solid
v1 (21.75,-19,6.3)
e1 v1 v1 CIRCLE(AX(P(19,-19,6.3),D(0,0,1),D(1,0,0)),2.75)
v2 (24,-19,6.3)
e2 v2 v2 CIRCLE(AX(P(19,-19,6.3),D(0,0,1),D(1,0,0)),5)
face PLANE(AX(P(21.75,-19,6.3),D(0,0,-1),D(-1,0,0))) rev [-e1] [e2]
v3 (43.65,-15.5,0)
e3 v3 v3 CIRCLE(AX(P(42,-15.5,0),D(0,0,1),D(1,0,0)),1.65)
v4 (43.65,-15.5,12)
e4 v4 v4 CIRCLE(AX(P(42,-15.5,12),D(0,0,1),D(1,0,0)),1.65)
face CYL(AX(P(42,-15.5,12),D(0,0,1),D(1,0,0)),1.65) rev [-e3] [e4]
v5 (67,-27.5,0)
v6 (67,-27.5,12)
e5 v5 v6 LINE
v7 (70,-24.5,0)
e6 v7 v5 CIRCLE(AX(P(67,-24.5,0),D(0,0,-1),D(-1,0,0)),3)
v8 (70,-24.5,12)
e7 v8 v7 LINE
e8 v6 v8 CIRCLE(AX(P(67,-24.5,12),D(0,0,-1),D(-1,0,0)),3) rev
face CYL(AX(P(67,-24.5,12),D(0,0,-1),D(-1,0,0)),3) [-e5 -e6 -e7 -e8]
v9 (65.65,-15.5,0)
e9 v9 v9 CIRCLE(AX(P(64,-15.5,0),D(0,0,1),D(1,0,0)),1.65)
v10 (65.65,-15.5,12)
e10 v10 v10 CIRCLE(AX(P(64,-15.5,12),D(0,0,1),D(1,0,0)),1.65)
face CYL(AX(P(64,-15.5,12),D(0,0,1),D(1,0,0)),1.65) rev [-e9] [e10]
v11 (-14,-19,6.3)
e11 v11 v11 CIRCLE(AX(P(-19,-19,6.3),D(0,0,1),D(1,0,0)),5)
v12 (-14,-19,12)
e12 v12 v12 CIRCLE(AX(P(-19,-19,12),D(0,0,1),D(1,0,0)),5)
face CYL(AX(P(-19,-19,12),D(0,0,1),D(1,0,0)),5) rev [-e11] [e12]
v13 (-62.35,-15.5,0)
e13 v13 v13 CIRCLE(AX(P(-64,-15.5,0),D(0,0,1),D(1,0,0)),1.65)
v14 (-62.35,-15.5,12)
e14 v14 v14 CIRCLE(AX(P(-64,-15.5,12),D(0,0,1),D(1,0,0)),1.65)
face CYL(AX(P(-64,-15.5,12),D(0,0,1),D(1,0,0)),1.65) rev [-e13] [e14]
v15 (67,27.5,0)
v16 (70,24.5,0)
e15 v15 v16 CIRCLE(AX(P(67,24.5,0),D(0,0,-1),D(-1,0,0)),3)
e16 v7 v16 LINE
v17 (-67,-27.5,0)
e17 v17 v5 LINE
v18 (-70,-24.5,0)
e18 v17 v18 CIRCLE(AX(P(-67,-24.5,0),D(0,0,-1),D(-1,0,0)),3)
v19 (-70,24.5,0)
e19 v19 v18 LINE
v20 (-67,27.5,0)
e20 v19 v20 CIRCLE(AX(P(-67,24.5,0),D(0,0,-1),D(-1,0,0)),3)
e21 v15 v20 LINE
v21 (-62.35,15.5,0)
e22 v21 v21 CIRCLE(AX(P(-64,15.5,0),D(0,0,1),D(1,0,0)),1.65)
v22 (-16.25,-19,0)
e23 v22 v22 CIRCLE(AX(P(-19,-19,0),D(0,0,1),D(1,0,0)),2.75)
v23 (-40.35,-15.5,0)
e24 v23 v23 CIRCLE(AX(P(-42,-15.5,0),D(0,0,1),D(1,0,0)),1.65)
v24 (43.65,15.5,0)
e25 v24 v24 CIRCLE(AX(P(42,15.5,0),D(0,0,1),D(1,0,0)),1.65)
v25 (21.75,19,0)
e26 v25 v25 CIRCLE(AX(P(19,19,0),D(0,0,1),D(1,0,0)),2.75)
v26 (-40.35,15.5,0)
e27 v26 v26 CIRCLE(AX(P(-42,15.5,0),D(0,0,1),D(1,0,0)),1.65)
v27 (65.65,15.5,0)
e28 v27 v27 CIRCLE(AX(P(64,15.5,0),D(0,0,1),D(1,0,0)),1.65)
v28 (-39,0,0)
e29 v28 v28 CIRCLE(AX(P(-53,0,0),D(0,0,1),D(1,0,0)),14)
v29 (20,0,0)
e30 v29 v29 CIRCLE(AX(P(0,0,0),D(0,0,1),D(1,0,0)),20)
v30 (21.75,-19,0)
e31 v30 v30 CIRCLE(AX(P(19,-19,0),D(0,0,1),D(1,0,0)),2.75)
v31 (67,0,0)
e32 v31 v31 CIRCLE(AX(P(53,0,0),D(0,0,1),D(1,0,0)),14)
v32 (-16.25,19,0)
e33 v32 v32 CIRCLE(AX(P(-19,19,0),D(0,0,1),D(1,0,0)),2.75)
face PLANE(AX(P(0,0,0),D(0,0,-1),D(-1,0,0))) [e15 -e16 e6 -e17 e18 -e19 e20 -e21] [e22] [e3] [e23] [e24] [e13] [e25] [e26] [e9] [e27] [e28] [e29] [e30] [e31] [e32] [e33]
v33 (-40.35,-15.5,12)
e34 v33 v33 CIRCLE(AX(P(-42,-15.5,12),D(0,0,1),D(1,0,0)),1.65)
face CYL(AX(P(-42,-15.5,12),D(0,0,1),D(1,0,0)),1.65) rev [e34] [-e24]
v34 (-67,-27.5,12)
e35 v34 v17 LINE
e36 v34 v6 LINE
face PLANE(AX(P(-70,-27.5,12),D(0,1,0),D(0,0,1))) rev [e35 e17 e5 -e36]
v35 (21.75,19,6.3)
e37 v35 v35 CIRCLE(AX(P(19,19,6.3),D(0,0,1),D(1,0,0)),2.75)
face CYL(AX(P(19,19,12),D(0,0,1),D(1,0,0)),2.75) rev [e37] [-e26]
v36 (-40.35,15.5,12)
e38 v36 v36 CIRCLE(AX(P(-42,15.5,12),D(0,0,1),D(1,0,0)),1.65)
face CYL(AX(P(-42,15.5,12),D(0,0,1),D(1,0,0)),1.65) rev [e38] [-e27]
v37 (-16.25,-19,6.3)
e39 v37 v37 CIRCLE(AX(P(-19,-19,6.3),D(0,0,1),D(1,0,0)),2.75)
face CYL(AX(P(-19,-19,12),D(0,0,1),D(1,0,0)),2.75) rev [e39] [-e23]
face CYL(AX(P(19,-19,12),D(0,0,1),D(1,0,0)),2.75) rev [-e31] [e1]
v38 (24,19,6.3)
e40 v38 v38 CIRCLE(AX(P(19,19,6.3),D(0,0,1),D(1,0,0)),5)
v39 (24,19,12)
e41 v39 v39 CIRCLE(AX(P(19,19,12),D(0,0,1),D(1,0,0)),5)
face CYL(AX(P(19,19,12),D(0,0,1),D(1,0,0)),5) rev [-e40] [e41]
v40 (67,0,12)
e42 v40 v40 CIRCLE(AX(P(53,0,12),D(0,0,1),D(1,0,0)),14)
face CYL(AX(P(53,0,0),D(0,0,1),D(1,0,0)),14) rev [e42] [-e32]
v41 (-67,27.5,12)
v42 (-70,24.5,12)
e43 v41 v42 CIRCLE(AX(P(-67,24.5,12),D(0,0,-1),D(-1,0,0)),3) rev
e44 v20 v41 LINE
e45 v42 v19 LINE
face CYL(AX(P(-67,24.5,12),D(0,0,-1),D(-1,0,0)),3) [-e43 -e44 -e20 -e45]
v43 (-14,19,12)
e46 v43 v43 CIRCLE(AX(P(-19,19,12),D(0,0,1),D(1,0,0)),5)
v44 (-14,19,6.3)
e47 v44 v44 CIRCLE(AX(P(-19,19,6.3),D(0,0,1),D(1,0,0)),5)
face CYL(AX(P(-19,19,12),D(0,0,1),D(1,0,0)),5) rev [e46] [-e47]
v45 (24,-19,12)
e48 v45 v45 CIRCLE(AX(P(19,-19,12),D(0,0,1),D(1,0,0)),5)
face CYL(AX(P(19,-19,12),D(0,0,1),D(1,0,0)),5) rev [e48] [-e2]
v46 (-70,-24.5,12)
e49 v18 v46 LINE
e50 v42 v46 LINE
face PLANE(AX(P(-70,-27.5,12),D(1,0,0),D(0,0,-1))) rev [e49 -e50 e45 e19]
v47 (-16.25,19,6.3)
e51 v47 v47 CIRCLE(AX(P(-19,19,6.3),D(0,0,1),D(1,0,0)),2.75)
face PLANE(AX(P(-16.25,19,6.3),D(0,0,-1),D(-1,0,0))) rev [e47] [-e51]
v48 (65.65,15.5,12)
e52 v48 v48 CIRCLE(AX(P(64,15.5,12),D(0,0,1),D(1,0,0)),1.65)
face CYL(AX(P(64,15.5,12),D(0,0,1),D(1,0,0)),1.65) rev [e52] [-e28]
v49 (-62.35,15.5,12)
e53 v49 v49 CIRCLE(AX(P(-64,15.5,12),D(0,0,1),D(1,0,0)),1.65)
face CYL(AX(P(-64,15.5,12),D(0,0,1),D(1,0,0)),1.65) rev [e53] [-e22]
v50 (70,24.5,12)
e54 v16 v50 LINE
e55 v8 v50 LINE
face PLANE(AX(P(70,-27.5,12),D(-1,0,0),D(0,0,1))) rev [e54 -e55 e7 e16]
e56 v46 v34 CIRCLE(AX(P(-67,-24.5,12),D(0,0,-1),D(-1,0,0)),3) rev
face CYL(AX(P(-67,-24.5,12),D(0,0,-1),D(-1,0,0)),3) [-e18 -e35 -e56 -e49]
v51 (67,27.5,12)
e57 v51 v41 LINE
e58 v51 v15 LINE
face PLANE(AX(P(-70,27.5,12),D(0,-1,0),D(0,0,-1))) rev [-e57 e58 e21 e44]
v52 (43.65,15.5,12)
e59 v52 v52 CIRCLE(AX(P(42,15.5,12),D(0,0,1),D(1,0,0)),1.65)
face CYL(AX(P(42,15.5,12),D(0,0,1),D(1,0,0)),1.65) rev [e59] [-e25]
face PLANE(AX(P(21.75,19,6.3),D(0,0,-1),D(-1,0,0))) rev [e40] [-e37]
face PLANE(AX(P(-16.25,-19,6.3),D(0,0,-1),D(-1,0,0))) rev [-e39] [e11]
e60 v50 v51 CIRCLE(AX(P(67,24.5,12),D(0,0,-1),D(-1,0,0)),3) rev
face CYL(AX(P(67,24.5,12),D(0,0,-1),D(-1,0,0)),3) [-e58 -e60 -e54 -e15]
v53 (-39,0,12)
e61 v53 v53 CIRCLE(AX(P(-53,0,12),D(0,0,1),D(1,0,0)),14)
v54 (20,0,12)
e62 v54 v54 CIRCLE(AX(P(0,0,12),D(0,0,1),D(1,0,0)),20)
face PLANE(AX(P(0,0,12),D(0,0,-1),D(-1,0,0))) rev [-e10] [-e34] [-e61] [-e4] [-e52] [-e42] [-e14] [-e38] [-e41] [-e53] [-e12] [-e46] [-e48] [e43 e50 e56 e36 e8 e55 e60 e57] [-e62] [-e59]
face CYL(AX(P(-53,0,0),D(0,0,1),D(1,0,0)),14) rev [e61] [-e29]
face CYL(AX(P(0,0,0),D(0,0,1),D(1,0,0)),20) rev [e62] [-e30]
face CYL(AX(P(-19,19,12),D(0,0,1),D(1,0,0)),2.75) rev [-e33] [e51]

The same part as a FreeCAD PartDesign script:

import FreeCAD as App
import Part
import Sketcher
Q = App.Units.Quantity


def edges_at(feature, points):
    """Names of the edges that pass closest to the given points."""
    edges = feature.Shape.Edges
    near = lambda p: min(range(len(edges)), key=lambda i: edges[i].distToShape(Part.Vertex(*p))[0])
    return sorted({f"Edge{near(p) + 1}" for p in points})

doc = App.newDocument("Part")
params = doc.addObject("Spreadsheet::Sheet", "Params")
for row, (alias, value) in enumerate([
    ("sketch1_width", "140 mm"),
    ("sketch1_height", "55 mm"),
    ("pad1_length", "12 mm"),
    ("sketch2_diameter", "40 mm"),
    ("sketch2_diameter2", "28 mm"),
    ("fillet_radius", "3 mm"),
    ("sketch3_diameter", "3.3 mm"),
    ("hole_diameter", "3.3 mm"),
    ("sketch4_diameter", "5.5 mm"),
    ("hole2_diameter", "5.5 mm"),
    ("hole2_cbore_diameter", "10 mm"),
    ("hole2_cbore_depth", "5.7 mm"),
], start=1):
    params.set(f"A{row}", alias)
    params.set(f"B{row}", "=" + value)
    params.setAlias(f"B{row}", alias)

body = doc.addObject("PartDesign::Body", "Body")

# Sketch on XY plane
sketch1 = body.newObject("Sketcher::SketchObject", "Sketch")
sketch1.AttachmentSupport = (doc.getObject("XY_Plane"), [""])
sketch1.MapMode = "FlatFace"
sketch1.addGeometry([
    Part.LineSegment(App.Vector(-70, 28, 0), App.Vector(-70, -28, 0)),
    Part.LineSegment(App.Vector(-70, -28, 0), App.Vector(70, -28, 0)),
    Part.LineSegment(App.Vector(70, -28, 0), App.Vector(70, 28, 0)),
    Part.LineSegment(App.Vector(70, 28, 0), App.Vector(-70, 28, 0)),
], False)
sketch1.addConstraint([
    Sketcher.Constraint("Coincident", 0, 2, 1, 1),
    Sketcher.Constraint("Coincident", 1, 2, 2, 1),
    Sketcher.Constraint("Coincident", 2, 2, 3, 1),
    Sketcher.Constraint("Coincident", 3, 2, 0, 1),
    Sketcher.Constraint("Vertical", 0),
    Sketcher.Constraint("Horizontal", 1),
    Sketcher.Constraint("Vertical", 2),
    Sketcher.Constraint("Horizontal", 3),
    Sketcher.Constraint("Symmetric", 0, 2, 2, 2, -1, 1),
    Sketcher.Constraint("DistanceX", 1, 1, 1, 2, Q("140 mm")),
    Sketcher.Constraint("DistanceY", 0, 2, 0, 1, Q("55 mm")),
])
sketch1.setExpression("Constraints[9]", "Params.sketch1_width")
sketch1.setExpression("Constraints[10]", "Params.sketch1_height")
pad1 = body.newObject("PartDesign::Pad", "Pad")
pad1.Profile = sketch1
pad1.setExpression("Length", "Params.pad1_length")

# Sketch on XY plane
sketch2 = body.newObject("Sketcher::SketchObject", "Sketch001")
sketch2.AttachmentSupport = (doc.getObject("XY_Plane"), [""])
sketch2.MapMode = "FlatFace"
sketch2.AttachmentOffset = App.Placement(App.Vector(0, 0, 12), App.Rotation())
sketch2.addGeometry([
    Part.Circle(App.Vector(0, 0, 0), App.Vector(0, 0, 1), 20),
    Part.Circle(App.Vector(-53, 0, 0), App.Vector(0, 0, 1), 14),
    Part.Circle(App.Vector(53, 0, 0), App.Vector(0, 0, 1), 14),
], False)
sketch2.addConstraint([
    Sketcher.Constraint("Coincident", 0, 3, -1, 1),
    Sketcher.Constraint("Equal", 1, 2),
    Sketcher.Constraint("Symmetric", 1, 3, 2, 3, -1, 1),
    Sketcher.Constraint("PointOnObject", 1, 3, -1),
    Sketcher.Constraint("Diameter", 0, Q("40 mm")),
    Sketcher.Constraint("Diameter", 1, Q("28 mm")),
    Sketcher.Constraint("DistanceX", 1, 3, -1, 1, Q("53 mm")),
])
sketch2.setExpression("Constraints[4]", "Params.sketch2_diameter")
sketch2.setExpression("Constraints[5]", "Params.sketch2_diameter2")
pocket1 = body.newObject("PartDesign::Pocket", "Pocket")
pocket1.Profile = sketch2
pocket1.Type = "ThroughAll"
doc.recompute()

fillet = body.newObject("PartDesign::Fillet", "Fillet")
fillet.Base = (pocket1, edges_at(pocket1, [
    (70, -27.5, 6),
    (-70, -27.5, 6),
    (-70, 27.5, 6),
    (70, 27.5, 6),
]))
fillet.setExpression("Radius", "Params.fillet_radius")

# Sketch on XY plane
sketch3 = body.newObject("Sketcher::SketchObject", "Sketch002")
sketch3.AttachmentSupport = (doc.getObject("XY_Plane"), [""])
sketch3.MapMode = "FlatFace"
sketch3.AttachmentOffset = App.Placement(App.Vector(0, 0, 12), App.Rotation())
sketch3.addGeometry([
    Part.Circle(App.Vector(-64, 15.5, 0), App.Vector(0, 0, 1), 1.6),  # 0
    Part.Circle(App.Vector(-42, 15.5, 0), App.Vector(0, 0, 1), 1.6),  # 1
    Part.Circle(App.Vector(-42, -15.5, 0), App.Vector(0, 0, 1), 1.6),  # 2
    Part.Circle(App.Vector(-64, -15.5, 0), App.Vector(0, 0, 1), 1.6),  # 3
    Part.Circle(App.Vector(42, -15.5, 0), App.Vector(0, 0, 1), 1.6),  # 4
    Part.Circle(App.Vector(64, -15.5, 0), App.Vector(0, 0, 1), 1.6),  # 5
    Part.Circle(App.Vector(64, 15.5, 0), App.Vector(0, 0, 1), 1.6),  # 6
    Part.Circle(App.Vector(42, 15.5, 0), App.Vector(0, 0, 1), 1.6),  # 7
], False)
sketch3.addConstraint([
    Sketcher.Constraint("Equal", 0, 1),
    Sketcher.Constraint("Equal", 1, 2),
    Sketcher.Constraint("Equal", 2, 3),
    Sketcher.Constraint("Equal", 3, 4),
    Sketcher.Constraint("Equal", 4, 5),
    Sketcher.Constraint("Equal", 5, 6),
    Sketcher.Constraint("Equal", 6, 7),
    Sketcher.Constraint("Symmetric", 1, 3, 4, 3, -1, 1),
    Sketcher.Constraint("Symmetric", 0, 3, 5, 3, -1, 1),
    Sketcher.Constraint("Symmetric", 3, 3, 6, 3, -1, 1),
    Sketcher.Constraint("Symmetric", 2, 3, 7, 3, -1, 1),
    Sketcher.Constraint("Symmetric", 2, 3, 4, 3, -2),
    Sketcher.Constraint("Symmetric", 3, 3, 5, 3, -2),
    Sketcher.Constraint("Horizontal", 0, 3, 1, 3),
    Sketcher.Constraint("Diameter", 0, Q("3.3 mm")),
    Sketcher.Constraint("DistanceX", 0, 3, -1, 1, Q("64 mm")),
    Sketcher.Constraint("DistanceX", 1, 3, -1, 1, Q("42 mm")),
    Sketcher.Constraint("DistanceY", 2, 3, 1, 3, Q("31 mm")),
])
sketch3.setExpression("Constraints[14]", "Params.sketch3_diameter")
doc.recompute()
hole = body.newObject("PartDesign::Hole", "Hole")
hole.Profile = sketch3
hole.ThreadType = "None"
hole.setExpression("Diameter", "Params.hole_diameter")
hole.DepthType = "ThroughAll"

# Sketch on XY plane
sketch4 = body.newObject("Sketcher::SketchObject", "Sketch003")
sketch4.AttachmentSupport = (doc.getObject("XY_Plane"), [""])
sketch4.MapMode = "FlatFace"
sketch4.AttachmentOffset = App.Placement(App.Vector(0, 0, 12), App.Rotation())
sketch4.addGeometry([
    Part.Circle(App.Vector(-19, 19, 0), App.Vector(0, 0, 1), 2.8),
    Part.Circle(App.Vector(19, 19, 0), App.Vector(0, 0, 1), 2.8),
    Part.Circle(App.Vector(19, -19, 0), App.Vector(0, 0, 1), 2.8),
    Part.Circle(App.Vector(-19, -19, 0), App.Vector(0, 0, 1), 2.8),
], False)
sketch4.addConstraint([
    Sketcher.Constraint("Equal", 0, 1),
    Sketcher.Constraint("Equal", 1, 2),
    Sketcher.Constraint("Equal", 2, 3),
    Sketcher.Constraint("Symmetric", 0, 3, 2, 3, -1, 1),
    Sketcher.Constraint("Symmetric", 1, 3, 3, 3, -1, 1),
    Sketcher.Constraint("Symmetric", 0, 3, 1, 3, -2),
    Sketcher.Constraint("Diameter", 0, Q("5.5 mm")),
    Sketcher.Constraint("DistanceX", 0, 3, -1, 1, Q("19 mm")),
    Sketcher.Constraint("DistanceY", -1, 1, 0, 3, Q("19 mm")),
])
sketch4.setExpression("Constraints[6]", "Params.sketch4_diameter")
doc.recompute()
hole2 = body.newObject("PartDesign::Hole", "Hole001")
hole2.Profile = sketch4
hole2.ThreadType = "None"
hole2.setExpression("Diameter", "Params.hole2_diameter")
hole2.DepthType = "ThroughAll"
hole2.HoleCutType = "Counterbore"
hole2.setExpression("HoleCutDiameter", "Params.hole2_cbore_diameter")
hole2.setExpression("HoleCutDepth", "Params.hole2_cbore_depth")

doc.recompute()
